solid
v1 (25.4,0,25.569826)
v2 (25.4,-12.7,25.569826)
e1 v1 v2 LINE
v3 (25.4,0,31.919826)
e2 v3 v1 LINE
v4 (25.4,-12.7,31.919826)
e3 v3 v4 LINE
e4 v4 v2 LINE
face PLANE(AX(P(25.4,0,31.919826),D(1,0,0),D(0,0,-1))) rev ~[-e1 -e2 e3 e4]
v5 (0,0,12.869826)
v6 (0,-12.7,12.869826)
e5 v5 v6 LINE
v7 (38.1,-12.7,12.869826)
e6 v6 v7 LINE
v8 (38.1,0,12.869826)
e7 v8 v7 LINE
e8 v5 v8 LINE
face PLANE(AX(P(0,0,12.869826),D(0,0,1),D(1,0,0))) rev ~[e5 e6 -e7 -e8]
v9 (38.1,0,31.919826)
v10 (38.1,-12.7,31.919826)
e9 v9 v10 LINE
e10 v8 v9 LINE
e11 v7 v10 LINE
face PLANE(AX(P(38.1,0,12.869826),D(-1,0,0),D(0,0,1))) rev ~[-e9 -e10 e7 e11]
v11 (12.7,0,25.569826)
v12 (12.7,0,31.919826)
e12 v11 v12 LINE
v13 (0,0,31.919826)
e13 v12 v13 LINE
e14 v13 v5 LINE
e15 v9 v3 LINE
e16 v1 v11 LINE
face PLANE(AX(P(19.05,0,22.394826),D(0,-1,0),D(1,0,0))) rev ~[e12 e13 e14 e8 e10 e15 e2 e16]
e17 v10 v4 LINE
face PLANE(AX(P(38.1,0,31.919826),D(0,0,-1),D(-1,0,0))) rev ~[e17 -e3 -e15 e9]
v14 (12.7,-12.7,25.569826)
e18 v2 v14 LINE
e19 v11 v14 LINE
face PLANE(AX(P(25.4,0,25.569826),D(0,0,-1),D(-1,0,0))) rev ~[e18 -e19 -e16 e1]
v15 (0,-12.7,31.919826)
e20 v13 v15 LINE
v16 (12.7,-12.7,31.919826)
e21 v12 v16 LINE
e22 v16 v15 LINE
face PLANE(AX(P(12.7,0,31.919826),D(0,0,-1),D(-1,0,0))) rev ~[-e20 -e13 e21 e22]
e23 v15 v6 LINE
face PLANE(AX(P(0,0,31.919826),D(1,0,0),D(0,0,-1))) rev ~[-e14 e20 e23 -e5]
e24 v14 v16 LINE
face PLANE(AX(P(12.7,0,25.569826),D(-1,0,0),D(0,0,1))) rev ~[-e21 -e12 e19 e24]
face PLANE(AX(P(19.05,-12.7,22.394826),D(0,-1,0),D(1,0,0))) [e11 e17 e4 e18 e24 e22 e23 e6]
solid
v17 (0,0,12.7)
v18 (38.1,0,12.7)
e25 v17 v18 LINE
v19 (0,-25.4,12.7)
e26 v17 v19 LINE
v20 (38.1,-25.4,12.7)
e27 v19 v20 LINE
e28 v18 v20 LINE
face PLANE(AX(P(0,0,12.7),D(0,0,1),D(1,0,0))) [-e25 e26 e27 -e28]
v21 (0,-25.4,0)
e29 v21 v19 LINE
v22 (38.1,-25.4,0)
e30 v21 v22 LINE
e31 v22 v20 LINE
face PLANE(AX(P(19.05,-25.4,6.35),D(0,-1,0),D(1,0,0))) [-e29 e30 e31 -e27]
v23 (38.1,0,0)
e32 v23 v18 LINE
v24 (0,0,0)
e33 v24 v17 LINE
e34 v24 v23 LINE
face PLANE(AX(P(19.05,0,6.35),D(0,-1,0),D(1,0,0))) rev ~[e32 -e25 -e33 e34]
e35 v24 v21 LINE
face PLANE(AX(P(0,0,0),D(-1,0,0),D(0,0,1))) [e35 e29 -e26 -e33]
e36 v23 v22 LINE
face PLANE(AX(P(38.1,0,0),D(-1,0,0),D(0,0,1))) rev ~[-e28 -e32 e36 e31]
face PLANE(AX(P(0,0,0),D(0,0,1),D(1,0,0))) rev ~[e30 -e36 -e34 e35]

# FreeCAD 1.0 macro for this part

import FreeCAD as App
import Part
import Sketcher

V = App.Vector
Q = App.Units.Quantity


def add_polygon(sketch, points):
    """Adds a closed chain of lines whose ends are joined by coincident constraints."""
    first, n = sketch.GeometryCount, len(points)
    for a, b in zip(points, points[1:] + points[:1]):
        sketch.addGeometry(Part.LineSegment(App.Vector(*a, 0), App.Vector(*b, 0)), False)
    for i in range(n):
        sketch.addConstraint(Sketcher.Constraint("Coincident", first + i, 2, first + (i + 1) % n, 1))

doc = App.newDocument("Part")
body = doc.addObject("PartDesign::Body", "Body")

sketch1 = body.newObject("Sketcher::SketchObject", "Sketch")
sketch1.AttachmentSupport = (doc.getObject("XZ_Plane"), [""])
sketch1.MapMode = "FlatFace"
add_polygon(sketch1, [(0, 13), (0, 0), (38, 0), (38, 13)])
sketch1.addConstraint([
    Sketcher.Constraint("Vertical", 0),
    Sketcher.Constraint("Horizontal", 1),
    Sketcher.Constraint("Vertical", 2),
    Sketcher.Constraint("Horizontal", 3),
    Sketcher.Constraint("Coincident", 0, 2, -1, 1),
    Sketcher.Constraint("DistanceX", 1, 1, 1, 2, Q("1.5 in")),
    Sketcher.Constraint("DistanceY", 0, 2, 0, 1, Q("0.5 in")),
])
pad1 = body.newObject("PartDesign::Pad", "Pad")
pad1.Profile = sketch1
pad1.Length = Q("1 in")
body2 = doc.addObject("PartDesign::Body", "Body001")

sketch2 = body2.newObject("Sketcher::SketchObject", "Sketch001")
sketch2.AttachmentSupport = (doc.getObject("XZ_Plane001"), [""])
sketch2.MapMode = "FlatFace"
add_polygon(sketch2, [(0, 32), (0, 13), (38, 13), (38, 32), (25, 32), (25, 26), (13, 26), (13, 32)])
sketch2.addConstraint([
    Sketcher.Constraint("Vertical", 0),
    Sketcher.Constraint("Horizontal", 1),
    Sketcher.Constraint("Vertical", 2),
    Sketcher.Constraint("Horizontal", 3),
    Sketcher.Constraint("Vertical", 4),
    Sketcher.Constraint("Horizontal", 5),
    Sketcher.Constraint("Vertical", 6),
    Sketcher.Constraint("Horizontal", 7),
    Sketcher.Constraint("PointOnObject", 0, 2, -2),
    Sketcher.Constraint("Horizontal", 3, 2, 6, 2),
    Sketcher.Constraint("Equal", 3, 5),
    Sketcher.Constraint("Equal", 5, 7),
    Sketcher.Constraint("DistanceX", 1, 1, 1, 2, Q("1.5 in")),
    Sketcher.Constraint("DistanceY", 0, 2, 0, 1, Q("0.75 in")),
    Sketcher.Constraint("DistanceY", 4, 2, 4, 1, Q("0.25 in")),
    Sketcher.Constraint("DistanceY", -1, 1, 0, 2, Q("12.869826 mm")),
])
pad2 = body2.newObject("PartDesign::Pad", "Pad001")
pad2.Profile = sketch2
pad2.Length = Q("0.5 in")

doc.recompute()
